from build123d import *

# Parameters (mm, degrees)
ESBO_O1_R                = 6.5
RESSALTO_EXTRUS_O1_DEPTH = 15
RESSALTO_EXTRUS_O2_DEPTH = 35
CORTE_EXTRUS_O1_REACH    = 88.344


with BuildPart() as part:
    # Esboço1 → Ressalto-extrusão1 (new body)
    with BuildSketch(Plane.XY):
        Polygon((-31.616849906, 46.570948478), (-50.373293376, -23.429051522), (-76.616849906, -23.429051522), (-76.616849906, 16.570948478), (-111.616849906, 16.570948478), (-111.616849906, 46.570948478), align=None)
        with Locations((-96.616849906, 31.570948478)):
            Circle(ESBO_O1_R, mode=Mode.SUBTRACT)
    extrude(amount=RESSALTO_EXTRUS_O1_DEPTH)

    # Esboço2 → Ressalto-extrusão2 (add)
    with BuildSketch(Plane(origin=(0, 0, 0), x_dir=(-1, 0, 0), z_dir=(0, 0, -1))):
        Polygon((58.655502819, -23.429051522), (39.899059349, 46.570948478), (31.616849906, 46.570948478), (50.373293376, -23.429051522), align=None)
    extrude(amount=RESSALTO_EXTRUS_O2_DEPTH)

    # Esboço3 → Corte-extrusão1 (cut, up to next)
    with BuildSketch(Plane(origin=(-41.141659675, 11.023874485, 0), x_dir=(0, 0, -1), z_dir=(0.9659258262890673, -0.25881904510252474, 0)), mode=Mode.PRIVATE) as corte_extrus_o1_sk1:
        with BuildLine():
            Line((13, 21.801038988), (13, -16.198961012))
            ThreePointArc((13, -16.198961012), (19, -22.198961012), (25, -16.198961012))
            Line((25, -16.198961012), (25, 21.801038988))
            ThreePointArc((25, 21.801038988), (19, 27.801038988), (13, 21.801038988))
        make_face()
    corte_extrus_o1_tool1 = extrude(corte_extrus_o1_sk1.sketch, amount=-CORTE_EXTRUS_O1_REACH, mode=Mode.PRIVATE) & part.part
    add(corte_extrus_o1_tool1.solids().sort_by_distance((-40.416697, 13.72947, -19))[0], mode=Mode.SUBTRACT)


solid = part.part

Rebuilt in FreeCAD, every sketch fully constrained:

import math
import FreeCAD as App
import Part
import Sketcher
from FreeCAD import Vector
Q = App.Units.Quantity


def add_polygon(sketch, points):
    """Adds a closed chain of lines whose ends are joined by coincident constraints."""
    first, n = sketch.GeometryCount, len(points)
    for a, b in zip(points, points[1:] + points[:1]):
        sketch.addGeometry(Part.LineSegment(App.Vector(*a, 0), App.Vector(*b, 0)), False)
    for i in range(n):
        sketch.addConstraint(Sketcher.Constraint("Coincident", first + i, 2, first + (i + 1) % n, 1))

doc = App.newDocument("Part")
body = doc.addObject("PartDesign::Body", "Body")

# Sketch on XY plane
sketch1 = doc.addObject("Sketcher::SketchObject", "Sketch")
body.addObject(sketch1)
sketch1.AttachmentSupport = (doc.XY_Plane, [""])
sketch1.MapMode = "FlatFace"
add_polygon(sketch1, [(-50, -23), (-32, 47), (-112, 47), (-112, 17), (-77, 17), (-77, -23)])  # lines 0-5
sketch1.addGeometry(Part.Circle(Vector(-97, 32, 0), Vector(0, 0, 1), 6), False)  # 6
sketch1.addConstraint([
    Sketcher.Constraint("Horizontal", 1),
    Sketcher.Constraint("Vertical", 2),
    Sketcher.Constraint("Horizontal", 3),
    Sketcher.Constraint("Vertical", 4),
    Sketcher.Constraint("Horizontal", 5),
    Sketcher.Constraint("Diameter", 6, 13.0),
    Sketcher.Constraint("DistanceX", 1, 2, 1, 1, 80.0),
    Sketcher.Constraint("DistanceX", 3, 1, 3, 2, 35.0),
    Sketcher.Constraint("DistanceY", 2, 2, 2, 1, 30.0),
    Sketcher.Constraint("DistanceY", 4, 2, 4, 1, 40.0),
    Sketcher.Constraint("Angle", 0, Q("75 deg")),
    Sketcher.Constraint("DistanceX", 6, 3, 0, 2, 65.0),
    Sketcher.Constraint("DistanceY", 6, 3, 0, 2, 15.0),
    Sketcher.Constraint("DistanceX", 6, 3, -1, 1, 96.61685),
    Sketcher.Constraint("DistanceY", -1, 1, 6, 3, 31.570948),
])
pad1 = doc.addObject("PartDesign::Pad", "Pad")
body.addObject(pad1)
pad1.Profile = sketch1
pad1.Length = 15

# Sketch on XY plane
sketch2 = doc.addObject("Sketcher::SketchObject", "Sketch001")
body.addObject(sketch2)
sketch2.AttachmentSupport = (doc.XY_Plane, [""])
sketch2.MapMode = "FlatFace"
add_polygon(sketch2, [(-59, -23), (-40, 47), (-32, 47), (-50, -23)])  # lines 0-3
sketch2.addConstraint([
    Sketcher.Constraint("Horizontal", 1),
    Sketcher.Constraint("Horizontal", 3),
    Sketcher.Constraint("Parallel", 0, 2),
    Sketcher.Constraint("Angle", 0, Q("75 deg")),
    Sketcher.Constraint("DistanceY", 2, 2, 0, 2, 70.0),
    Sketcher.Constraint("DistanceX", 1, 1, 1, 2, 8.282209),
    Sketcher.Constraint("DistanceX", 0, 2, -1, 1, 39.899059),
    Sketcher.Constraint("DistanceY", -1, 1, 0, 2, 46.570948),
])
pad2 = doc.addObject("PartDesign::Pad", "Pad001")
body.addObject(pad2)
pad2.Profile = sketch2
pad2.Length = 35
pad2.Reversed = True

# Sketch on an angled plane
sketch3 = doc.addObject("Sketcher::SketchObject", "Sketch002")
body.addObject(sketch3)
sketch3.Placement = App.Placement(Vector(-41.14166, 11.023874, 0), App.Rotation(Vector(0, 0, -1), Vector(0.258819045, 0.965925826, 0), Vector(0.965925826, -0.258819045, 0), "ZXY"))
sketch3.addGeometry([
    Part.LineSegment(Vector(13, 22, 0), Vector(13, -16, 0)),
    Part.ArcOfCircle(Part.Circle(Vector(19, -16, 0), Vector(0, 0, 1), 6), math.radians(180), math.radians(360)),
    Part.LineSegment(Vector(25, -16, 0), Vector(25, 22, 0)),
    Part.ArcOfCircle(Part.Circle(Vector(19, 22, 0), Vector(0, 0, 1), 6), math.radians(0), math.radians(180)),
], False)
sketch3.addConstraint([
    Sketcher.Constraint("Tangent", 0, 2, 1, 1),
    Sketcher.Constraint("Tangent", 1, 2, 2, 1),
    Sketcher.Constraint("Tangent", 2, 2, 3, 1),
    Sketcher.Constraint("Tangent", 3, 2, 0, 1),
    Sketcher.Constraint("Vertical", 0),
    Sketcher.Constraint("Vertical", 2),
    Sketcher.Constraint("Radius", 1, 6.0),
    Sketcher.Constraint("DistanceY", 0, 2, 0, 1, 38.0),
    Sketcher.Constraint("DistanceX", -1, 1, 1, 3, 19.0),
    Sketcher.Constraint("DistanceY", 1, 3, -1, 1, 16.198961),
])
pocket1 = doc.addObject("PartDesign::Pocket", "Pocket")
body.addObject(pocket1)
pocket1.Profile = sketch3
pocket1.Type = "UpToFirst"

doc.recompute()
